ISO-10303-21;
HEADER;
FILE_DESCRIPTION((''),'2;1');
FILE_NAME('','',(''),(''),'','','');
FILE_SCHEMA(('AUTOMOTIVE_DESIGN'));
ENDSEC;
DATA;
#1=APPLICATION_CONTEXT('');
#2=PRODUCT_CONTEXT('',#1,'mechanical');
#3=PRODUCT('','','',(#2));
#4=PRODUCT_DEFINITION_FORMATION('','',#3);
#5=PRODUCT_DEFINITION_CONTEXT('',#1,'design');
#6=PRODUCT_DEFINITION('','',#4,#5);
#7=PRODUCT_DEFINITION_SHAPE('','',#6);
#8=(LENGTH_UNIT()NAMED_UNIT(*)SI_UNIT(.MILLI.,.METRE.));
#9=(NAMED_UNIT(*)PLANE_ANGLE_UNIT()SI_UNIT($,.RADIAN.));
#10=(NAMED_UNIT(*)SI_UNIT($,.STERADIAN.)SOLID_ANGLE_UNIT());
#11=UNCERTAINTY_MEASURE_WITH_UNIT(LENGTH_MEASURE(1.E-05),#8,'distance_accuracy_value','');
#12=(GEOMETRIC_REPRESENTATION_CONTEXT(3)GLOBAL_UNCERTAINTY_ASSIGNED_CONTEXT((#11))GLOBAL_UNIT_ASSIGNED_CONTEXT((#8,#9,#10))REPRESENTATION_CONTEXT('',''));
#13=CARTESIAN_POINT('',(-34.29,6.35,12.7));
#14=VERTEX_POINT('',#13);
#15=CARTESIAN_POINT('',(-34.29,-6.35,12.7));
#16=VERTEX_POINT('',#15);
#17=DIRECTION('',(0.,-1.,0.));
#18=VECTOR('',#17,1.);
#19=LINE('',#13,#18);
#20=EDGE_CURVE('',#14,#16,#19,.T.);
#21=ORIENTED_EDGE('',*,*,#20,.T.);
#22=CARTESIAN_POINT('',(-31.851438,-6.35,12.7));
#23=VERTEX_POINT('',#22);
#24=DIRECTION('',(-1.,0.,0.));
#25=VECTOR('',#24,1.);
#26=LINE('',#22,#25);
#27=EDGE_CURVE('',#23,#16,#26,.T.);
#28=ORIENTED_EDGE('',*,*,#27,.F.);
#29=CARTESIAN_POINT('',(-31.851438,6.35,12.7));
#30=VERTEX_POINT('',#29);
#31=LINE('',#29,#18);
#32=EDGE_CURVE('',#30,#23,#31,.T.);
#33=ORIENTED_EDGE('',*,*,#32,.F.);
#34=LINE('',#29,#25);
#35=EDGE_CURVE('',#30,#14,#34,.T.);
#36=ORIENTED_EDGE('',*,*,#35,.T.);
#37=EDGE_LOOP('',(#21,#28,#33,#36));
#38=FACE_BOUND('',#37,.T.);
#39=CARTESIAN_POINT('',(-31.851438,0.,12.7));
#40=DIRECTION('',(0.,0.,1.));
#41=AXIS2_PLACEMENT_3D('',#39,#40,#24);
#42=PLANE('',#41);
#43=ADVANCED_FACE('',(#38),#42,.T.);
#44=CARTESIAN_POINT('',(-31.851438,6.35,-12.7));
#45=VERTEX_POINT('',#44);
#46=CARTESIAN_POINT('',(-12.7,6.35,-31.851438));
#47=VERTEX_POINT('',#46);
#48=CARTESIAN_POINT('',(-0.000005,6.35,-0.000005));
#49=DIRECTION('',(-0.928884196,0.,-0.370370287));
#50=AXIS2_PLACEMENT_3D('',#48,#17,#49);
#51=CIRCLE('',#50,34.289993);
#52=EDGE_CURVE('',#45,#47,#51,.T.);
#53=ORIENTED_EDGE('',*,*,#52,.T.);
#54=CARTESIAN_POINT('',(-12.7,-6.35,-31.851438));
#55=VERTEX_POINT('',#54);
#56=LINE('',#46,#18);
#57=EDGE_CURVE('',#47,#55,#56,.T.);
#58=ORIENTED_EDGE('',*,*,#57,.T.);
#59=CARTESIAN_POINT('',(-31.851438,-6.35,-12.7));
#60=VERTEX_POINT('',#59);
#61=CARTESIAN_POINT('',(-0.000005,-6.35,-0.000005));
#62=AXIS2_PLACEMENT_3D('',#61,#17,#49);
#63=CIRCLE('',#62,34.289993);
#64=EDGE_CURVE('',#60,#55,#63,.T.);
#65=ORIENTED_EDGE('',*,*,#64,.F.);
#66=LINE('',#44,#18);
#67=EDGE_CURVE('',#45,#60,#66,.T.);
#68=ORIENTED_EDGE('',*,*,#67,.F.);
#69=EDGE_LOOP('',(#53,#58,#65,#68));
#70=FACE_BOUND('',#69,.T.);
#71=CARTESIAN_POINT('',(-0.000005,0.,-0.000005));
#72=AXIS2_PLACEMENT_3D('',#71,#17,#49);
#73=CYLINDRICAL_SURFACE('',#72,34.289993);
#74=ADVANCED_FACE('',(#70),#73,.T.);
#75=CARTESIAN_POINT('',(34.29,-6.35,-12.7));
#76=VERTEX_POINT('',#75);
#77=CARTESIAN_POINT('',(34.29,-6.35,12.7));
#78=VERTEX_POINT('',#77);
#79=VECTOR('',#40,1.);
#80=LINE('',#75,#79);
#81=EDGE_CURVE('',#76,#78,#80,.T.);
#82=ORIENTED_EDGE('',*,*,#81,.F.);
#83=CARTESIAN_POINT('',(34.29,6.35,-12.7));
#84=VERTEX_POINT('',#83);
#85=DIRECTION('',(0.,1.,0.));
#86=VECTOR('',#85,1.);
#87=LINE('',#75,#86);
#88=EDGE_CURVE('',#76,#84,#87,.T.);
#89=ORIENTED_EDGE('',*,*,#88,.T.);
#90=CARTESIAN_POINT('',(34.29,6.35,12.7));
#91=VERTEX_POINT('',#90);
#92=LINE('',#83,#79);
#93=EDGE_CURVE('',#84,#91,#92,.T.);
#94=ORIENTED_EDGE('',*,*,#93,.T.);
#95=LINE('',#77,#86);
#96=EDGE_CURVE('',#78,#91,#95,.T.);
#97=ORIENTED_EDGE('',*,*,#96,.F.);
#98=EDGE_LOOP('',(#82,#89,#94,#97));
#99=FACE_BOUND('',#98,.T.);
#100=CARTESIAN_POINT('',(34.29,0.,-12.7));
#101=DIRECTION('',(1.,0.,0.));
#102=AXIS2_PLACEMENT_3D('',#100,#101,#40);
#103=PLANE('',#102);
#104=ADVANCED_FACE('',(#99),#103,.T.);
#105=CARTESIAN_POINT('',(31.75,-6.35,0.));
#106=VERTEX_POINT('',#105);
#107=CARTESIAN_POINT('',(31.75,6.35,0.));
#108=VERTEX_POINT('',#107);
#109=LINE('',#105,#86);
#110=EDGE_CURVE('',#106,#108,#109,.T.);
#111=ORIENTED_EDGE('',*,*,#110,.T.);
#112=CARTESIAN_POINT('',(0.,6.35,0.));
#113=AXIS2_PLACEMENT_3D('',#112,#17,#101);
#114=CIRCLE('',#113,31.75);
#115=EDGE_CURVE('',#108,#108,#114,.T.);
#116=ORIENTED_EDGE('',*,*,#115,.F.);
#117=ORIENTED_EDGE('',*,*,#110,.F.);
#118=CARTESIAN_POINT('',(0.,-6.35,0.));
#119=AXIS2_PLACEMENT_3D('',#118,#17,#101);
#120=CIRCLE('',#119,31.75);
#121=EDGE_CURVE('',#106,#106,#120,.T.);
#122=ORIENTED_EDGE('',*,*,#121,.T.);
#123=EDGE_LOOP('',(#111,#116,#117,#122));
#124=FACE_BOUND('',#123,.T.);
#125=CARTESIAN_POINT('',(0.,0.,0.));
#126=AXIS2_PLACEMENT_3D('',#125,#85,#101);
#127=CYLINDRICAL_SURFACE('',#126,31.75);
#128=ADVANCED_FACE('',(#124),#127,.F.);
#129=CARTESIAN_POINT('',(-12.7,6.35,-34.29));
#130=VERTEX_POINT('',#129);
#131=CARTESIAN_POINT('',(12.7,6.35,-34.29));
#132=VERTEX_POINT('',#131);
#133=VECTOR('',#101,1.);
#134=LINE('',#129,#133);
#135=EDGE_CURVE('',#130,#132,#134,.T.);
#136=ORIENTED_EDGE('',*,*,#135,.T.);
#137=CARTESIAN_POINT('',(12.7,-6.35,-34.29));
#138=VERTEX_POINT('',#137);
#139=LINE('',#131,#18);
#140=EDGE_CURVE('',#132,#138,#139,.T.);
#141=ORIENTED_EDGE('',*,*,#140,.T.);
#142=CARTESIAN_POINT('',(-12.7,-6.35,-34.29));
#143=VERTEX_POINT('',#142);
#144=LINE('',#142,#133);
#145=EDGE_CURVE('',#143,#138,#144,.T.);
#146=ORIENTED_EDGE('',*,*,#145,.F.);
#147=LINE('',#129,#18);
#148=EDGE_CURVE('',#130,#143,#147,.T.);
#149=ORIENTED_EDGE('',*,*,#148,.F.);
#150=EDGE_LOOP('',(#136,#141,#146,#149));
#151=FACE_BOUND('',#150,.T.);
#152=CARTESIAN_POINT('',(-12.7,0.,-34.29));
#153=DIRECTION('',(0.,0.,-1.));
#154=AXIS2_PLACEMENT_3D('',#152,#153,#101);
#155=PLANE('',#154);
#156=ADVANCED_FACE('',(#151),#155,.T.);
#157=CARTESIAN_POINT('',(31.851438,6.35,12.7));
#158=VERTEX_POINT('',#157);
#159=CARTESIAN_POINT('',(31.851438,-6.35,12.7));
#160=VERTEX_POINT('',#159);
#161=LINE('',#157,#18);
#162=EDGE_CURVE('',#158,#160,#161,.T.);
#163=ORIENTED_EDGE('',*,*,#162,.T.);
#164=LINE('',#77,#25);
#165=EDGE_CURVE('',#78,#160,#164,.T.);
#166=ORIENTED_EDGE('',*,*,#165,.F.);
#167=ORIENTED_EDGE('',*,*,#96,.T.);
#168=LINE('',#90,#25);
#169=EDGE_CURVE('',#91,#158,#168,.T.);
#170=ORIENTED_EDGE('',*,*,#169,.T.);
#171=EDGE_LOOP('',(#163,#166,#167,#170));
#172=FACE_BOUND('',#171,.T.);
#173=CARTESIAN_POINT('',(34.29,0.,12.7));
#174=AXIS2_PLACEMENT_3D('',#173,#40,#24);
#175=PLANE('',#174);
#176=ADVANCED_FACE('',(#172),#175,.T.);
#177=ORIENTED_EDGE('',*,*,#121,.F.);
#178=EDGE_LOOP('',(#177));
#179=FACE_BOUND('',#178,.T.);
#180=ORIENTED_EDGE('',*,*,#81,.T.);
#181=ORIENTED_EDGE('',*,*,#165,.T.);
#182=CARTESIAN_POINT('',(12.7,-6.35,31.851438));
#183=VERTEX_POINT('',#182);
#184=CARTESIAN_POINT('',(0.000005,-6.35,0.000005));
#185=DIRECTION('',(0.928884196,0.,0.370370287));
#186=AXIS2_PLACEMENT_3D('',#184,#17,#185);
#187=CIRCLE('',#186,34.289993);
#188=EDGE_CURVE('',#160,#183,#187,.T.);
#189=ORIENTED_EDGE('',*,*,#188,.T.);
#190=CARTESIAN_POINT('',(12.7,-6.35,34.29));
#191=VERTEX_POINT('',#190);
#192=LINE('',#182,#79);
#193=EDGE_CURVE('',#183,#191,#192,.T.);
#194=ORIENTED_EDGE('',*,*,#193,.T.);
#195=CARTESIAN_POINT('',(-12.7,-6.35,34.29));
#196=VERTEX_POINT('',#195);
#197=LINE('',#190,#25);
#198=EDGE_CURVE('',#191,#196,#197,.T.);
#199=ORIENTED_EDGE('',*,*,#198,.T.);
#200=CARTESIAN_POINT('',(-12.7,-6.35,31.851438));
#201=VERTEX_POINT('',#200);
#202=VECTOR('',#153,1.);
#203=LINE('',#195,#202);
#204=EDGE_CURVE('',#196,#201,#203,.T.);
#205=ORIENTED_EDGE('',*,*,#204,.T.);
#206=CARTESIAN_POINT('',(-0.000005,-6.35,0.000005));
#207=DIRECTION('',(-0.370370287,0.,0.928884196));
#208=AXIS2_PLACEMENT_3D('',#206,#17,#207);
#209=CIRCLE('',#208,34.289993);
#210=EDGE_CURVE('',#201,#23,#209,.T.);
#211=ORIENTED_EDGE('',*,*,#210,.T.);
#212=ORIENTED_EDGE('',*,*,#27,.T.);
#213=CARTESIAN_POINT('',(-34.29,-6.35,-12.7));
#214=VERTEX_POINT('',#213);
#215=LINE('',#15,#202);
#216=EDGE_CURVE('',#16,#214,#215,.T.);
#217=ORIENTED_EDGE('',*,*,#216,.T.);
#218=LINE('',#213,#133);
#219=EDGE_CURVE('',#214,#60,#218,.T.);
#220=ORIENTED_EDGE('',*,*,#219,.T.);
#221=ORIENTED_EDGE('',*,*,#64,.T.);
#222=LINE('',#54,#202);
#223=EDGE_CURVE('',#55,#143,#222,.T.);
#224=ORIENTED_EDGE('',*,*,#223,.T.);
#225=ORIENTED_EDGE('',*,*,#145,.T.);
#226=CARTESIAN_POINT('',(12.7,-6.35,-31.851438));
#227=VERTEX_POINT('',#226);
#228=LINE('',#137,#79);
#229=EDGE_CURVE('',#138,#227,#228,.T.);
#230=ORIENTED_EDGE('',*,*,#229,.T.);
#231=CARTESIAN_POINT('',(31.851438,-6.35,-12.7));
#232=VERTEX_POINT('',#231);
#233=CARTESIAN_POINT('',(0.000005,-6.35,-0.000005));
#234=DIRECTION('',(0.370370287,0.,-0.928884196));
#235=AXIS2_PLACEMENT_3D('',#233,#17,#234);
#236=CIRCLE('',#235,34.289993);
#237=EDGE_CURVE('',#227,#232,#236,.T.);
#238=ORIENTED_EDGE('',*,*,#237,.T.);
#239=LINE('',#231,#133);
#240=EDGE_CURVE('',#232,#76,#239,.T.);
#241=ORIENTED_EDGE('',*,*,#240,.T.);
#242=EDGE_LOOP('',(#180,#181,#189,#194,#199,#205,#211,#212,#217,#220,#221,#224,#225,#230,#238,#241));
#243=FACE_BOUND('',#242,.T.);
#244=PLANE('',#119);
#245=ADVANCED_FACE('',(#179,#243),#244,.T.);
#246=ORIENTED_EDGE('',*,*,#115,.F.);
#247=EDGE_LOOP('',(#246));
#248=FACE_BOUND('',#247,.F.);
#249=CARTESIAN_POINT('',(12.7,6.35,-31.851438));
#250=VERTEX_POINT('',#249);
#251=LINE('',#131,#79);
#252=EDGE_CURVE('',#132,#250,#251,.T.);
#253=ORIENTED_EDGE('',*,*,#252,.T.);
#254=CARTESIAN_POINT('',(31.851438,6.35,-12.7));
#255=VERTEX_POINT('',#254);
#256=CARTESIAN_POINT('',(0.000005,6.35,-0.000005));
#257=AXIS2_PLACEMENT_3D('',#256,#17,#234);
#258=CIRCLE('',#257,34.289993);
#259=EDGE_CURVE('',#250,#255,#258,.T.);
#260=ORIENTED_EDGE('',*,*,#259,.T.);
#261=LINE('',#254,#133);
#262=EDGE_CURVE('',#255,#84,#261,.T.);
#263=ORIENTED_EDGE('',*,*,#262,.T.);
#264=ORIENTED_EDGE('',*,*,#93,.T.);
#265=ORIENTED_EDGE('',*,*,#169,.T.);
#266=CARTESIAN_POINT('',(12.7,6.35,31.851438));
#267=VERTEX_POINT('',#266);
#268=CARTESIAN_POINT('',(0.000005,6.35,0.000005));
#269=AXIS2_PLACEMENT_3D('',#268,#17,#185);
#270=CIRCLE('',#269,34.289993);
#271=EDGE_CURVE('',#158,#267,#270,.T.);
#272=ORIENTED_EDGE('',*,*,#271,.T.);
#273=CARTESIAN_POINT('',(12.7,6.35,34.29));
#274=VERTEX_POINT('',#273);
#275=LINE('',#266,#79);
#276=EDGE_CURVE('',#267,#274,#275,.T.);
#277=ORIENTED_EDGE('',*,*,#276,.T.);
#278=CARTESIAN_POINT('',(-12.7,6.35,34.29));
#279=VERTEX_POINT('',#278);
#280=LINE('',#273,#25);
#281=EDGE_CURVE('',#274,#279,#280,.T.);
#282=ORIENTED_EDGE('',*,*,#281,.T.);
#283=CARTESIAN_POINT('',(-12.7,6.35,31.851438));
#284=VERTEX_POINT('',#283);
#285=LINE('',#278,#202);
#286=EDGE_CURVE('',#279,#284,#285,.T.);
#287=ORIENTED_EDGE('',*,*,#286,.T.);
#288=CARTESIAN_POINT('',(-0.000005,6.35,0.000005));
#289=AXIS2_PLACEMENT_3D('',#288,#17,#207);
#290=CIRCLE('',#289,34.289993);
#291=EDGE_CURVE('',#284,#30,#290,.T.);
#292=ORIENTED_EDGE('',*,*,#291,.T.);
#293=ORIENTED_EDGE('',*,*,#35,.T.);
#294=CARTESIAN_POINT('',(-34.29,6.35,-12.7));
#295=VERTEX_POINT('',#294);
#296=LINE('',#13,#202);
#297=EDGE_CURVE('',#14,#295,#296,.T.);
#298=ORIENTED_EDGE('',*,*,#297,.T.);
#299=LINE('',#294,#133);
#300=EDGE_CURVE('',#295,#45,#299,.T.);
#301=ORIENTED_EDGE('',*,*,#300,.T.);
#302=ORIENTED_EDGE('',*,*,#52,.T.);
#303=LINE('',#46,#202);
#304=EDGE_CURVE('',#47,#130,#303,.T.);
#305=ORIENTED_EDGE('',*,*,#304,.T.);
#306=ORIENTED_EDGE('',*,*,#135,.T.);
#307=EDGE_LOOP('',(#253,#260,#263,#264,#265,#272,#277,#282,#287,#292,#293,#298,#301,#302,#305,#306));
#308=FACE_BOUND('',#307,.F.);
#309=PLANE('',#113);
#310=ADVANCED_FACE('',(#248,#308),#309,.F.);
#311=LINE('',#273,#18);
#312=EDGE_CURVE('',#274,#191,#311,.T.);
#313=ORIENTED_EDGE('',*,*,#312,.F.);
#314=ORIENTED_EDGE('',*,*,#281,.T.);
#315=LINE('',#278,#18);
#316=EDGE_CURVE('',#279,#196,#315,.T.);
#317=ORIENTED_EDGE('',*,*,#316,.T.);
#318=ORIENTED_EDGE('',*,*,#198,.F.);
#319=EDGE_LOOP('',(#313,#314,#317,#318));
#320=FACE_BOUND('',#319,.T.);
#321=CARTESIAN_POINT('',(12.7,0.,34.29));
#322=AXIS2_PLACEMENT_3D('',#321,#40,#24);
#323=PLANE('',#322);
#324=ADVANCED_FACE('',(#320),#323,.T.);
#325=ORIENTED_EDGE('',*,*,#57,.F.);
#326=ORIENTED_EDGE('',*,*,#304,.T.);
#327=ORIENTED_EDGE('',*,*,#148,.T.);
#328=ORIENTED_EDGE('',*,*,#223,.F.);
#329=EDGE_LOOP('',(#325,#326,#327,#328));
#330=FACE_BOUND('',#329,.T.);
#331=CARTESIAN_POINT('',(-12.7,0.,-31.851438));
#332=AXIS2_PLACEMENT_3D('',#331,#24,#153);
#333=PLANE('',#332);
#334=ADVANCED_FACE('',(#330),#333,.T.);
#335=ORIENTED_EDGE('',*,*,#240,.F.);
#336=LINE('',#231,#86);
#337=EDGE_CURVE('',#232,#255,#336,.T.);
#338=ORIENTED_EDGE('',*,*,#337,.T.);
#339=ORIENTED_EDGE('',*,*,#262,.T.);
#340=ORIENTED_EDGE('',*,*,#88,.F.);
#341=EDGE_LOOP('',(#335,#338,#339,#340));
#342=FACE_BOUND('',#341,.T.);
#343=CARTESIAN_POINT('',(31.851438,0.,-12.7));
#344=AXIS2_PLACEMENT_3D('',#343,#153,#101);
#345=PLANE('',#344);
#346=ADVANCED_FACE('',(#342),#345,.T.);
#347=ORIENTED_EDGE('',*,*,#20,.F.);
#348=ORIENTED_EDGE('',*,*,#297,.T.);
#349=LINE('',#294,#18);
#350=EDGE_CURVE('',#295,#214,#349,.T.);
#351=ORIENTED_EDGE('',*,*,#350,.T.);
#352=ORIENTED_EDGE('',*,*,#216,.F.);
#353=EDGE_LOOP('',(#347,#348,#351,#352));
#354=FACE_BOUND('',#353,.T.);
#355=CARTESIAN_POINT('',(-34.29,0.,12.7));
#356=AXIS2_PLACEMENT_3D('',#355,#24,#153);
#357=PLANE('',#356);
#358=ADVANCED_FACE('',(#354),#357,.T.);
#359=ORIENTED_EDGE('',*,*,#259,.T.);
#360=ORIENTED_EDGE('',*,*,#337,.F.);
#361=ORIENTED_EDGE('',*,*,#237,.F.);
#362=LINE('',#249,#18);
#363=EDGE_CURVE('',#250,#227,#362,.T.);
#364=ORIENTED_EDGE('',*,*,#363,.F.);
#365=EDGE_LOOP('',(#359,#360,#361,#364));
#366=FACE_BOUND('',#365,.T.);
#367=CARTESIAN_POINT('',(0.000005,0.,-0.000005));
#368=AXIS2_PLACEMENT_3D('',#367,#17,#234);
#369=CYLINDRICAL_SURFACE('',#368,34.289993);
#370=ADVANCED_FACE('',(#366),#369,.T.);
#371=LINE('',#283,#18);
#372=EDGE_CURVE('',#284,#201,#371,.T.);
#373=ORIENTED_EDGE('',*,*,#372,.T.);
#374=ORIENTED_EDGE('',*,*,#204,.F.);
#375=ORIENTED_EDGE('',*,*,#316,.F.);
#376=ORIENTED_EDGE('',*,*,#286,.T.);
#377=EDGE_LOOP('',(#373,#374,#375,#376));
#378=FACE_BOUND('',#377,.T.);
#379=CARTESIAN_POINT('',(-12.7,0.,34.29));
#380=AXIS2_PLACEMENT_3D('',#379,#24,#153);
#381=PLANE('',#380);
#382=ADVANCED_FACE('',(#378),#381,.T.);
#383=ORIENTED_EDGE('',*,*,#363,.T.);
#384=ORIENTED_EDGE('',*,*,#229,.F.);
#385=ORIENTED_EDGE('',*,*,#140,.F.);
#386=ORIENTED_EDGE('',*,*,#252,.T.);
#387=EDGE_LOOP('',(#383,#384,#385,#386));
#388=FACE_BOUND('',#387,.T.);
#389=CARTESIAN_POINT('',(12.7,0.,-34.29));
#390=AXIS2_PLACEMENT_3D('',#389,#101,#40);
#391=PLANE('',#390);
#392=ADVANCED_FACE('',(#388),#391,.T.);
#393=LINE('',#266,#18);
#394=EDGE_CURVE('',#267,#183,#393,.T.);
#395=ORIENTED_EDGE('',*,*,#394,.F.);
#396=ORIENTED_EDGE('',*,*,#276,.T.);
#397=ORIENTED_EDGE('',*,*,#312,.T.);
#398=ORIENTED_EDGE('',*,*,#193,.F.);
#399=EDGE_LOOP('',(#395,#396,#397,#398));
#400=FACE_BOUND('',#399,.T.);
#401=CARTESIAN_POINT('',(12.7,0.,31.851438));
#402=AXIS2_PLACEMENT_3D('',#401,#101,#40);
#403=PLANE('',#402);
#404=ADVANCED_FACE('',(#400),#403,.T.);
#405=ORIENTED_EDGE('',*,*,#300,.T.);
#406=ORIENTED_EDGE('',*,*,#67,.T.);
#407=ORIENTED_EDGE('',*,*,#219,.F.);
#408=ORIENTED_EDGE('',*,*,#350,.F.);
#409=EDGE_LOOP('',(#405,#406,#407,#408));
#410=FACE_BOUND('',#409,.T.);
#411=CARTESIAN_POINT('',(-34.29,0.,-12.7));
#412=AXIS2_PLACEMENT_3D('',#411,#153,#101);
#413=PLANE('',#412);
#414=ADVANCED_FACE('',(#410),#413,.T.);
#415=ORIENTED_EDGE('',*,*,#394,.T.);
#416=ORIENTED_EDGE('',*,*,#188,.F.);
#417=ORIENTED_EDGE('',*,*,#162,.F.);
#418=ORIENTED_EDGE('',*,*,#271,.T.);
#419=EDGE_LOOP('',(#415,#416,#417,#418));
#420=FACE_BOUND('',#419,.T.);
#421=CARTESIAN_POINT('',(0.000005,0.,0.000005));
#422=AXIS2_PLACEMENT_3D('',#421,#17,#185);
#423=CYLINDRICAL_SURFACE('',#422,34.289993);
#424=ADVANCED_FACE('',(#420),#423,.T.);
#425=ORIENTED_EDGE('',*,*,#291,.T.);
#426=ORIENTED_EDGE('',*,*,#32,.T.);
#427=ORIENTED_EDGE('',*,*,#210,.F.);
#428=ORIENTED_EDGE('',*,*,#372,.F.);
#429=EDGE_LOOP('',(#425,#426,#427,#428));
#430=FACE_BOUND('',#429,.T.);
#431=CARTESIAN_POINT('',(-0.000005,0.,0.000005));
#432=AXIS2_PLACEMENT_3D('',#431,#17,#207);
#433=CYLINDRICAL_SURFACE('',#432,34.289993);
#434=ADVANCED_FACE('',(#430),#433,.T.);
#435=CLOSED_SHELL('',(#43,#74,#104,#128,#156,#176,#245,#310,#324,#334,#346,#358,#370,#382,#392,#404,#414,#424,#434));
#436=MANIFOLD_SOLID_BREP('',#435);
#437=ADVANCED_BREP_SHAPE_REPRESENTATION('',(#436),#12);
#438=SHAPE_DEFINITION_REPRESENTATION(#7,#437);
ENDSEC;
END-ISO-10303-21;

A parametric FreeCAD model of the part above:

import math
import FreeCAD as App
import Part
import Sketcher
from FreeCAD import Vector
Q = App.Units.Quantity

doc = App.newDocument("Part")
body = doc.addObject("PartDesign::Body", "Body")

# Sketch on XZ plane
sketch1 = body.newObject("Sketcher::SketchObject", "Sketch")
sketch1.AttachmentSupport = (doc.getObject("XZ_Plane"), [""])
sketch1.MapMode = "FlatFace"
sketch1.addGeometry([
    Part.LineSegment(Vector(34.3, 12.7, 0), Vector(31.9, 12.7, 0)),  # 0
    Part.ArcOfCircle(Part.Circle(Vector(0, 0, 0), Vector(0, 0, 1), 34.3), math.radians(22), math.radians(68)),  # 1
    Part.LineSegment(Vector(12.7, 31.9, 0), Vector(12.7, 34.3, 0)),  # 2
    Part.LineSegment(Vector(12.7, 34.3, 0), Vector(-12.7, 34.3, 0)),  # 3
    Part.LineSegment(Vector(-12.7, 34.3, 0), Vector(-12.7, 31.9, 0)),  # 4
    Part.ArcOfCircle(Part.Circle(Vector(0, 0, 0), Vector(0, 0, 1), 34.3), math.radians(112), math.radians(158)),  # 5
    Part.LineSegment(Vector(-31.9, 12.7, 0), Vector(-34.3, 12.7, 0)),  # 6
    Part.LineSegment(Vector(-34.3, 12.7, 0), Vector(-34.3, -12.7, 0)),  # 7
    Part.LineSegment(Vector(-34.3, -12.7, 0), Vector(-31.9, -12.7, 0)),  # 8
    Part.ArcOfCircle(Part.Circle(Vector(0, 0, 0), Vector(0, 0, 1), 34.3), math.radians(-158), math.radians(-112)),  # 9
    Part.LineSegment(Vector(-12.7, -31.9, 0), Vector(-12.7, -34.3, 0)),  # 10
    Part.LineSegment(Vector(-12.7, -34.3, 0), Vector(12.7, -34.3, 0)),  # 11
    Part.LineSegment(Vector(12.7, -34.3, 0), Vector(12.7, -31.9, 0)),  # 12
    Part.ArcOfCircle(Part.Circle(Vector(0, 0, 0), Vector(0, 0, 1), 34.3), math.radians(-68), math.radians(-22)),  # 13
    Part.LineSegment(Vector(31.9, -12.7, 0), Vector(34.3, -12.7, 0)),  # 14
    Part.LineSegment(Vector(34.3, -12.7, 0), Vector(34.3, 12.7, 0)),  # 15
    Part.Circle(Vector(0, 0, 0), Vector(0, 0, 1), 31.8),  # 16
], False)
sketch1.addConstraint([
    Sketcher.Constraint("Coincident", 0, 2, 1, 1),
    Sketcher.Constraint("Coincident", 1, 2, 2, 1),
    Sketcher.Constraint("Coincident", 2, 2, 3, 1),
    Sketcher.Constraint("Coincident", 3, 2, 4, 1),
    Sketcher.Constraint("Coincident", 4, 2, 5, 1),
    Sketcher.Constraint("Coincident", 5, 2, 6, 1),
    Sketcher.Constraint("Coincident", 6, 2, 7, 1),
    Sketcher.Constraint("Coincident", 7, 2, 8, 1),
    Sketcher.Constraint("Coincident", 8, 2, 9, 1),
    Sketcher.Constraint("Coincident", 9, 2, 10, 1),
    Sketcher.Constraint("Coincident", 10, 2, 11, 1),
    Sketcher.Constraint("Coincident", 11, 2, 12, 1),
    Sketcher.Constraint("Coincident", 12, 2, 13, 1),
    Sketcher.Constraint("Coincident", 13, 2, 14, 1),
    Sketcher.Constraint("Coincident", 14, 2, 15, 1),
    Sketcher.Constraint("Coincident", 15, 2, 0, 1),
    Sketcher.Constraint("Horizontal", 0),
    Sketcher.Constraint("Vertical", 2),
    Sketcher.Constraint("Horizontal", 3),
    Sketcher.Constraint("Vertical", 4),
    Sketcher.Constraint("Horizontal", 6),
    Sketcher.Constraint("Vertical", 7),
    Sketcher.Constraint("Horizontal", 8),
    Sketcher.Constraint("Vertical", 10),
    Sketcher.Constraint("Horizontal", 11),
    Sketcher.Constraint("Vertical", 12),
    Sketcher.Constraint("Horizontal", 14),
    Sketcher.Constraint("Vertical", 15),
    Sketcher.Constraint("Coincident", 1, 3, -1, 1),
    Sketcher.Constraint("Coincident", 5, 3, -1, 1),
    Sketcher.Constraint("Coincident", 9, 3, -1, 1),
    Sketcher.Constraint("Coincident", 13, 3, -1, 1),
    Sketcher.Constraint("Coincident", 16, 3, -1, 1),
    Sketcher.Constraint("Equal", 1, 5),
    Sketcher.Constraint("Equal", 5, 9),
    Sketcher.Constraint("Equal", 9, 13),
    Sketcher.Constraint("Symmetric", 2, 2, 10, 2, -1, 1),
    Sketcher.Constraint("Symmetric", 6, 2, 14, 2, -1, 1),
    Sketcher.Constraint("Horizontal", 1, 2, 4, 2),
    Sketcher.Constraint("Horizontal", 0, 2, 5, 2),
    Sketcher.Constraint("Horizontal", 9, 2, 12, 2),
    Sketcher.Constraint("Horizontal", 8, 2, 13, 2),
    Sketcher.Constraint("Equal", 14, 2),
    Sketcher.Constraint("Equal", 11, 7),
    Sketcher.Constraint("Diameter", 16, Q("2.5 in")),
    Sketcher.Constraint("DistanceX", 3, 2, 3, 1, Q("1 in")),
    Sketcher.Constraint("DistanceY", -1, 1, 2, 2, Q("1.35 in")),
    Sketcher.Constraint("Radius", 1, 34.289993),
])
pad1 = body.newObject("PartDesign::Pad", "Pad")
pad1.Profile = sketch1
pad1.Length = Q("0.5 in")
pad1.Midplane = True

doc.recompute()
